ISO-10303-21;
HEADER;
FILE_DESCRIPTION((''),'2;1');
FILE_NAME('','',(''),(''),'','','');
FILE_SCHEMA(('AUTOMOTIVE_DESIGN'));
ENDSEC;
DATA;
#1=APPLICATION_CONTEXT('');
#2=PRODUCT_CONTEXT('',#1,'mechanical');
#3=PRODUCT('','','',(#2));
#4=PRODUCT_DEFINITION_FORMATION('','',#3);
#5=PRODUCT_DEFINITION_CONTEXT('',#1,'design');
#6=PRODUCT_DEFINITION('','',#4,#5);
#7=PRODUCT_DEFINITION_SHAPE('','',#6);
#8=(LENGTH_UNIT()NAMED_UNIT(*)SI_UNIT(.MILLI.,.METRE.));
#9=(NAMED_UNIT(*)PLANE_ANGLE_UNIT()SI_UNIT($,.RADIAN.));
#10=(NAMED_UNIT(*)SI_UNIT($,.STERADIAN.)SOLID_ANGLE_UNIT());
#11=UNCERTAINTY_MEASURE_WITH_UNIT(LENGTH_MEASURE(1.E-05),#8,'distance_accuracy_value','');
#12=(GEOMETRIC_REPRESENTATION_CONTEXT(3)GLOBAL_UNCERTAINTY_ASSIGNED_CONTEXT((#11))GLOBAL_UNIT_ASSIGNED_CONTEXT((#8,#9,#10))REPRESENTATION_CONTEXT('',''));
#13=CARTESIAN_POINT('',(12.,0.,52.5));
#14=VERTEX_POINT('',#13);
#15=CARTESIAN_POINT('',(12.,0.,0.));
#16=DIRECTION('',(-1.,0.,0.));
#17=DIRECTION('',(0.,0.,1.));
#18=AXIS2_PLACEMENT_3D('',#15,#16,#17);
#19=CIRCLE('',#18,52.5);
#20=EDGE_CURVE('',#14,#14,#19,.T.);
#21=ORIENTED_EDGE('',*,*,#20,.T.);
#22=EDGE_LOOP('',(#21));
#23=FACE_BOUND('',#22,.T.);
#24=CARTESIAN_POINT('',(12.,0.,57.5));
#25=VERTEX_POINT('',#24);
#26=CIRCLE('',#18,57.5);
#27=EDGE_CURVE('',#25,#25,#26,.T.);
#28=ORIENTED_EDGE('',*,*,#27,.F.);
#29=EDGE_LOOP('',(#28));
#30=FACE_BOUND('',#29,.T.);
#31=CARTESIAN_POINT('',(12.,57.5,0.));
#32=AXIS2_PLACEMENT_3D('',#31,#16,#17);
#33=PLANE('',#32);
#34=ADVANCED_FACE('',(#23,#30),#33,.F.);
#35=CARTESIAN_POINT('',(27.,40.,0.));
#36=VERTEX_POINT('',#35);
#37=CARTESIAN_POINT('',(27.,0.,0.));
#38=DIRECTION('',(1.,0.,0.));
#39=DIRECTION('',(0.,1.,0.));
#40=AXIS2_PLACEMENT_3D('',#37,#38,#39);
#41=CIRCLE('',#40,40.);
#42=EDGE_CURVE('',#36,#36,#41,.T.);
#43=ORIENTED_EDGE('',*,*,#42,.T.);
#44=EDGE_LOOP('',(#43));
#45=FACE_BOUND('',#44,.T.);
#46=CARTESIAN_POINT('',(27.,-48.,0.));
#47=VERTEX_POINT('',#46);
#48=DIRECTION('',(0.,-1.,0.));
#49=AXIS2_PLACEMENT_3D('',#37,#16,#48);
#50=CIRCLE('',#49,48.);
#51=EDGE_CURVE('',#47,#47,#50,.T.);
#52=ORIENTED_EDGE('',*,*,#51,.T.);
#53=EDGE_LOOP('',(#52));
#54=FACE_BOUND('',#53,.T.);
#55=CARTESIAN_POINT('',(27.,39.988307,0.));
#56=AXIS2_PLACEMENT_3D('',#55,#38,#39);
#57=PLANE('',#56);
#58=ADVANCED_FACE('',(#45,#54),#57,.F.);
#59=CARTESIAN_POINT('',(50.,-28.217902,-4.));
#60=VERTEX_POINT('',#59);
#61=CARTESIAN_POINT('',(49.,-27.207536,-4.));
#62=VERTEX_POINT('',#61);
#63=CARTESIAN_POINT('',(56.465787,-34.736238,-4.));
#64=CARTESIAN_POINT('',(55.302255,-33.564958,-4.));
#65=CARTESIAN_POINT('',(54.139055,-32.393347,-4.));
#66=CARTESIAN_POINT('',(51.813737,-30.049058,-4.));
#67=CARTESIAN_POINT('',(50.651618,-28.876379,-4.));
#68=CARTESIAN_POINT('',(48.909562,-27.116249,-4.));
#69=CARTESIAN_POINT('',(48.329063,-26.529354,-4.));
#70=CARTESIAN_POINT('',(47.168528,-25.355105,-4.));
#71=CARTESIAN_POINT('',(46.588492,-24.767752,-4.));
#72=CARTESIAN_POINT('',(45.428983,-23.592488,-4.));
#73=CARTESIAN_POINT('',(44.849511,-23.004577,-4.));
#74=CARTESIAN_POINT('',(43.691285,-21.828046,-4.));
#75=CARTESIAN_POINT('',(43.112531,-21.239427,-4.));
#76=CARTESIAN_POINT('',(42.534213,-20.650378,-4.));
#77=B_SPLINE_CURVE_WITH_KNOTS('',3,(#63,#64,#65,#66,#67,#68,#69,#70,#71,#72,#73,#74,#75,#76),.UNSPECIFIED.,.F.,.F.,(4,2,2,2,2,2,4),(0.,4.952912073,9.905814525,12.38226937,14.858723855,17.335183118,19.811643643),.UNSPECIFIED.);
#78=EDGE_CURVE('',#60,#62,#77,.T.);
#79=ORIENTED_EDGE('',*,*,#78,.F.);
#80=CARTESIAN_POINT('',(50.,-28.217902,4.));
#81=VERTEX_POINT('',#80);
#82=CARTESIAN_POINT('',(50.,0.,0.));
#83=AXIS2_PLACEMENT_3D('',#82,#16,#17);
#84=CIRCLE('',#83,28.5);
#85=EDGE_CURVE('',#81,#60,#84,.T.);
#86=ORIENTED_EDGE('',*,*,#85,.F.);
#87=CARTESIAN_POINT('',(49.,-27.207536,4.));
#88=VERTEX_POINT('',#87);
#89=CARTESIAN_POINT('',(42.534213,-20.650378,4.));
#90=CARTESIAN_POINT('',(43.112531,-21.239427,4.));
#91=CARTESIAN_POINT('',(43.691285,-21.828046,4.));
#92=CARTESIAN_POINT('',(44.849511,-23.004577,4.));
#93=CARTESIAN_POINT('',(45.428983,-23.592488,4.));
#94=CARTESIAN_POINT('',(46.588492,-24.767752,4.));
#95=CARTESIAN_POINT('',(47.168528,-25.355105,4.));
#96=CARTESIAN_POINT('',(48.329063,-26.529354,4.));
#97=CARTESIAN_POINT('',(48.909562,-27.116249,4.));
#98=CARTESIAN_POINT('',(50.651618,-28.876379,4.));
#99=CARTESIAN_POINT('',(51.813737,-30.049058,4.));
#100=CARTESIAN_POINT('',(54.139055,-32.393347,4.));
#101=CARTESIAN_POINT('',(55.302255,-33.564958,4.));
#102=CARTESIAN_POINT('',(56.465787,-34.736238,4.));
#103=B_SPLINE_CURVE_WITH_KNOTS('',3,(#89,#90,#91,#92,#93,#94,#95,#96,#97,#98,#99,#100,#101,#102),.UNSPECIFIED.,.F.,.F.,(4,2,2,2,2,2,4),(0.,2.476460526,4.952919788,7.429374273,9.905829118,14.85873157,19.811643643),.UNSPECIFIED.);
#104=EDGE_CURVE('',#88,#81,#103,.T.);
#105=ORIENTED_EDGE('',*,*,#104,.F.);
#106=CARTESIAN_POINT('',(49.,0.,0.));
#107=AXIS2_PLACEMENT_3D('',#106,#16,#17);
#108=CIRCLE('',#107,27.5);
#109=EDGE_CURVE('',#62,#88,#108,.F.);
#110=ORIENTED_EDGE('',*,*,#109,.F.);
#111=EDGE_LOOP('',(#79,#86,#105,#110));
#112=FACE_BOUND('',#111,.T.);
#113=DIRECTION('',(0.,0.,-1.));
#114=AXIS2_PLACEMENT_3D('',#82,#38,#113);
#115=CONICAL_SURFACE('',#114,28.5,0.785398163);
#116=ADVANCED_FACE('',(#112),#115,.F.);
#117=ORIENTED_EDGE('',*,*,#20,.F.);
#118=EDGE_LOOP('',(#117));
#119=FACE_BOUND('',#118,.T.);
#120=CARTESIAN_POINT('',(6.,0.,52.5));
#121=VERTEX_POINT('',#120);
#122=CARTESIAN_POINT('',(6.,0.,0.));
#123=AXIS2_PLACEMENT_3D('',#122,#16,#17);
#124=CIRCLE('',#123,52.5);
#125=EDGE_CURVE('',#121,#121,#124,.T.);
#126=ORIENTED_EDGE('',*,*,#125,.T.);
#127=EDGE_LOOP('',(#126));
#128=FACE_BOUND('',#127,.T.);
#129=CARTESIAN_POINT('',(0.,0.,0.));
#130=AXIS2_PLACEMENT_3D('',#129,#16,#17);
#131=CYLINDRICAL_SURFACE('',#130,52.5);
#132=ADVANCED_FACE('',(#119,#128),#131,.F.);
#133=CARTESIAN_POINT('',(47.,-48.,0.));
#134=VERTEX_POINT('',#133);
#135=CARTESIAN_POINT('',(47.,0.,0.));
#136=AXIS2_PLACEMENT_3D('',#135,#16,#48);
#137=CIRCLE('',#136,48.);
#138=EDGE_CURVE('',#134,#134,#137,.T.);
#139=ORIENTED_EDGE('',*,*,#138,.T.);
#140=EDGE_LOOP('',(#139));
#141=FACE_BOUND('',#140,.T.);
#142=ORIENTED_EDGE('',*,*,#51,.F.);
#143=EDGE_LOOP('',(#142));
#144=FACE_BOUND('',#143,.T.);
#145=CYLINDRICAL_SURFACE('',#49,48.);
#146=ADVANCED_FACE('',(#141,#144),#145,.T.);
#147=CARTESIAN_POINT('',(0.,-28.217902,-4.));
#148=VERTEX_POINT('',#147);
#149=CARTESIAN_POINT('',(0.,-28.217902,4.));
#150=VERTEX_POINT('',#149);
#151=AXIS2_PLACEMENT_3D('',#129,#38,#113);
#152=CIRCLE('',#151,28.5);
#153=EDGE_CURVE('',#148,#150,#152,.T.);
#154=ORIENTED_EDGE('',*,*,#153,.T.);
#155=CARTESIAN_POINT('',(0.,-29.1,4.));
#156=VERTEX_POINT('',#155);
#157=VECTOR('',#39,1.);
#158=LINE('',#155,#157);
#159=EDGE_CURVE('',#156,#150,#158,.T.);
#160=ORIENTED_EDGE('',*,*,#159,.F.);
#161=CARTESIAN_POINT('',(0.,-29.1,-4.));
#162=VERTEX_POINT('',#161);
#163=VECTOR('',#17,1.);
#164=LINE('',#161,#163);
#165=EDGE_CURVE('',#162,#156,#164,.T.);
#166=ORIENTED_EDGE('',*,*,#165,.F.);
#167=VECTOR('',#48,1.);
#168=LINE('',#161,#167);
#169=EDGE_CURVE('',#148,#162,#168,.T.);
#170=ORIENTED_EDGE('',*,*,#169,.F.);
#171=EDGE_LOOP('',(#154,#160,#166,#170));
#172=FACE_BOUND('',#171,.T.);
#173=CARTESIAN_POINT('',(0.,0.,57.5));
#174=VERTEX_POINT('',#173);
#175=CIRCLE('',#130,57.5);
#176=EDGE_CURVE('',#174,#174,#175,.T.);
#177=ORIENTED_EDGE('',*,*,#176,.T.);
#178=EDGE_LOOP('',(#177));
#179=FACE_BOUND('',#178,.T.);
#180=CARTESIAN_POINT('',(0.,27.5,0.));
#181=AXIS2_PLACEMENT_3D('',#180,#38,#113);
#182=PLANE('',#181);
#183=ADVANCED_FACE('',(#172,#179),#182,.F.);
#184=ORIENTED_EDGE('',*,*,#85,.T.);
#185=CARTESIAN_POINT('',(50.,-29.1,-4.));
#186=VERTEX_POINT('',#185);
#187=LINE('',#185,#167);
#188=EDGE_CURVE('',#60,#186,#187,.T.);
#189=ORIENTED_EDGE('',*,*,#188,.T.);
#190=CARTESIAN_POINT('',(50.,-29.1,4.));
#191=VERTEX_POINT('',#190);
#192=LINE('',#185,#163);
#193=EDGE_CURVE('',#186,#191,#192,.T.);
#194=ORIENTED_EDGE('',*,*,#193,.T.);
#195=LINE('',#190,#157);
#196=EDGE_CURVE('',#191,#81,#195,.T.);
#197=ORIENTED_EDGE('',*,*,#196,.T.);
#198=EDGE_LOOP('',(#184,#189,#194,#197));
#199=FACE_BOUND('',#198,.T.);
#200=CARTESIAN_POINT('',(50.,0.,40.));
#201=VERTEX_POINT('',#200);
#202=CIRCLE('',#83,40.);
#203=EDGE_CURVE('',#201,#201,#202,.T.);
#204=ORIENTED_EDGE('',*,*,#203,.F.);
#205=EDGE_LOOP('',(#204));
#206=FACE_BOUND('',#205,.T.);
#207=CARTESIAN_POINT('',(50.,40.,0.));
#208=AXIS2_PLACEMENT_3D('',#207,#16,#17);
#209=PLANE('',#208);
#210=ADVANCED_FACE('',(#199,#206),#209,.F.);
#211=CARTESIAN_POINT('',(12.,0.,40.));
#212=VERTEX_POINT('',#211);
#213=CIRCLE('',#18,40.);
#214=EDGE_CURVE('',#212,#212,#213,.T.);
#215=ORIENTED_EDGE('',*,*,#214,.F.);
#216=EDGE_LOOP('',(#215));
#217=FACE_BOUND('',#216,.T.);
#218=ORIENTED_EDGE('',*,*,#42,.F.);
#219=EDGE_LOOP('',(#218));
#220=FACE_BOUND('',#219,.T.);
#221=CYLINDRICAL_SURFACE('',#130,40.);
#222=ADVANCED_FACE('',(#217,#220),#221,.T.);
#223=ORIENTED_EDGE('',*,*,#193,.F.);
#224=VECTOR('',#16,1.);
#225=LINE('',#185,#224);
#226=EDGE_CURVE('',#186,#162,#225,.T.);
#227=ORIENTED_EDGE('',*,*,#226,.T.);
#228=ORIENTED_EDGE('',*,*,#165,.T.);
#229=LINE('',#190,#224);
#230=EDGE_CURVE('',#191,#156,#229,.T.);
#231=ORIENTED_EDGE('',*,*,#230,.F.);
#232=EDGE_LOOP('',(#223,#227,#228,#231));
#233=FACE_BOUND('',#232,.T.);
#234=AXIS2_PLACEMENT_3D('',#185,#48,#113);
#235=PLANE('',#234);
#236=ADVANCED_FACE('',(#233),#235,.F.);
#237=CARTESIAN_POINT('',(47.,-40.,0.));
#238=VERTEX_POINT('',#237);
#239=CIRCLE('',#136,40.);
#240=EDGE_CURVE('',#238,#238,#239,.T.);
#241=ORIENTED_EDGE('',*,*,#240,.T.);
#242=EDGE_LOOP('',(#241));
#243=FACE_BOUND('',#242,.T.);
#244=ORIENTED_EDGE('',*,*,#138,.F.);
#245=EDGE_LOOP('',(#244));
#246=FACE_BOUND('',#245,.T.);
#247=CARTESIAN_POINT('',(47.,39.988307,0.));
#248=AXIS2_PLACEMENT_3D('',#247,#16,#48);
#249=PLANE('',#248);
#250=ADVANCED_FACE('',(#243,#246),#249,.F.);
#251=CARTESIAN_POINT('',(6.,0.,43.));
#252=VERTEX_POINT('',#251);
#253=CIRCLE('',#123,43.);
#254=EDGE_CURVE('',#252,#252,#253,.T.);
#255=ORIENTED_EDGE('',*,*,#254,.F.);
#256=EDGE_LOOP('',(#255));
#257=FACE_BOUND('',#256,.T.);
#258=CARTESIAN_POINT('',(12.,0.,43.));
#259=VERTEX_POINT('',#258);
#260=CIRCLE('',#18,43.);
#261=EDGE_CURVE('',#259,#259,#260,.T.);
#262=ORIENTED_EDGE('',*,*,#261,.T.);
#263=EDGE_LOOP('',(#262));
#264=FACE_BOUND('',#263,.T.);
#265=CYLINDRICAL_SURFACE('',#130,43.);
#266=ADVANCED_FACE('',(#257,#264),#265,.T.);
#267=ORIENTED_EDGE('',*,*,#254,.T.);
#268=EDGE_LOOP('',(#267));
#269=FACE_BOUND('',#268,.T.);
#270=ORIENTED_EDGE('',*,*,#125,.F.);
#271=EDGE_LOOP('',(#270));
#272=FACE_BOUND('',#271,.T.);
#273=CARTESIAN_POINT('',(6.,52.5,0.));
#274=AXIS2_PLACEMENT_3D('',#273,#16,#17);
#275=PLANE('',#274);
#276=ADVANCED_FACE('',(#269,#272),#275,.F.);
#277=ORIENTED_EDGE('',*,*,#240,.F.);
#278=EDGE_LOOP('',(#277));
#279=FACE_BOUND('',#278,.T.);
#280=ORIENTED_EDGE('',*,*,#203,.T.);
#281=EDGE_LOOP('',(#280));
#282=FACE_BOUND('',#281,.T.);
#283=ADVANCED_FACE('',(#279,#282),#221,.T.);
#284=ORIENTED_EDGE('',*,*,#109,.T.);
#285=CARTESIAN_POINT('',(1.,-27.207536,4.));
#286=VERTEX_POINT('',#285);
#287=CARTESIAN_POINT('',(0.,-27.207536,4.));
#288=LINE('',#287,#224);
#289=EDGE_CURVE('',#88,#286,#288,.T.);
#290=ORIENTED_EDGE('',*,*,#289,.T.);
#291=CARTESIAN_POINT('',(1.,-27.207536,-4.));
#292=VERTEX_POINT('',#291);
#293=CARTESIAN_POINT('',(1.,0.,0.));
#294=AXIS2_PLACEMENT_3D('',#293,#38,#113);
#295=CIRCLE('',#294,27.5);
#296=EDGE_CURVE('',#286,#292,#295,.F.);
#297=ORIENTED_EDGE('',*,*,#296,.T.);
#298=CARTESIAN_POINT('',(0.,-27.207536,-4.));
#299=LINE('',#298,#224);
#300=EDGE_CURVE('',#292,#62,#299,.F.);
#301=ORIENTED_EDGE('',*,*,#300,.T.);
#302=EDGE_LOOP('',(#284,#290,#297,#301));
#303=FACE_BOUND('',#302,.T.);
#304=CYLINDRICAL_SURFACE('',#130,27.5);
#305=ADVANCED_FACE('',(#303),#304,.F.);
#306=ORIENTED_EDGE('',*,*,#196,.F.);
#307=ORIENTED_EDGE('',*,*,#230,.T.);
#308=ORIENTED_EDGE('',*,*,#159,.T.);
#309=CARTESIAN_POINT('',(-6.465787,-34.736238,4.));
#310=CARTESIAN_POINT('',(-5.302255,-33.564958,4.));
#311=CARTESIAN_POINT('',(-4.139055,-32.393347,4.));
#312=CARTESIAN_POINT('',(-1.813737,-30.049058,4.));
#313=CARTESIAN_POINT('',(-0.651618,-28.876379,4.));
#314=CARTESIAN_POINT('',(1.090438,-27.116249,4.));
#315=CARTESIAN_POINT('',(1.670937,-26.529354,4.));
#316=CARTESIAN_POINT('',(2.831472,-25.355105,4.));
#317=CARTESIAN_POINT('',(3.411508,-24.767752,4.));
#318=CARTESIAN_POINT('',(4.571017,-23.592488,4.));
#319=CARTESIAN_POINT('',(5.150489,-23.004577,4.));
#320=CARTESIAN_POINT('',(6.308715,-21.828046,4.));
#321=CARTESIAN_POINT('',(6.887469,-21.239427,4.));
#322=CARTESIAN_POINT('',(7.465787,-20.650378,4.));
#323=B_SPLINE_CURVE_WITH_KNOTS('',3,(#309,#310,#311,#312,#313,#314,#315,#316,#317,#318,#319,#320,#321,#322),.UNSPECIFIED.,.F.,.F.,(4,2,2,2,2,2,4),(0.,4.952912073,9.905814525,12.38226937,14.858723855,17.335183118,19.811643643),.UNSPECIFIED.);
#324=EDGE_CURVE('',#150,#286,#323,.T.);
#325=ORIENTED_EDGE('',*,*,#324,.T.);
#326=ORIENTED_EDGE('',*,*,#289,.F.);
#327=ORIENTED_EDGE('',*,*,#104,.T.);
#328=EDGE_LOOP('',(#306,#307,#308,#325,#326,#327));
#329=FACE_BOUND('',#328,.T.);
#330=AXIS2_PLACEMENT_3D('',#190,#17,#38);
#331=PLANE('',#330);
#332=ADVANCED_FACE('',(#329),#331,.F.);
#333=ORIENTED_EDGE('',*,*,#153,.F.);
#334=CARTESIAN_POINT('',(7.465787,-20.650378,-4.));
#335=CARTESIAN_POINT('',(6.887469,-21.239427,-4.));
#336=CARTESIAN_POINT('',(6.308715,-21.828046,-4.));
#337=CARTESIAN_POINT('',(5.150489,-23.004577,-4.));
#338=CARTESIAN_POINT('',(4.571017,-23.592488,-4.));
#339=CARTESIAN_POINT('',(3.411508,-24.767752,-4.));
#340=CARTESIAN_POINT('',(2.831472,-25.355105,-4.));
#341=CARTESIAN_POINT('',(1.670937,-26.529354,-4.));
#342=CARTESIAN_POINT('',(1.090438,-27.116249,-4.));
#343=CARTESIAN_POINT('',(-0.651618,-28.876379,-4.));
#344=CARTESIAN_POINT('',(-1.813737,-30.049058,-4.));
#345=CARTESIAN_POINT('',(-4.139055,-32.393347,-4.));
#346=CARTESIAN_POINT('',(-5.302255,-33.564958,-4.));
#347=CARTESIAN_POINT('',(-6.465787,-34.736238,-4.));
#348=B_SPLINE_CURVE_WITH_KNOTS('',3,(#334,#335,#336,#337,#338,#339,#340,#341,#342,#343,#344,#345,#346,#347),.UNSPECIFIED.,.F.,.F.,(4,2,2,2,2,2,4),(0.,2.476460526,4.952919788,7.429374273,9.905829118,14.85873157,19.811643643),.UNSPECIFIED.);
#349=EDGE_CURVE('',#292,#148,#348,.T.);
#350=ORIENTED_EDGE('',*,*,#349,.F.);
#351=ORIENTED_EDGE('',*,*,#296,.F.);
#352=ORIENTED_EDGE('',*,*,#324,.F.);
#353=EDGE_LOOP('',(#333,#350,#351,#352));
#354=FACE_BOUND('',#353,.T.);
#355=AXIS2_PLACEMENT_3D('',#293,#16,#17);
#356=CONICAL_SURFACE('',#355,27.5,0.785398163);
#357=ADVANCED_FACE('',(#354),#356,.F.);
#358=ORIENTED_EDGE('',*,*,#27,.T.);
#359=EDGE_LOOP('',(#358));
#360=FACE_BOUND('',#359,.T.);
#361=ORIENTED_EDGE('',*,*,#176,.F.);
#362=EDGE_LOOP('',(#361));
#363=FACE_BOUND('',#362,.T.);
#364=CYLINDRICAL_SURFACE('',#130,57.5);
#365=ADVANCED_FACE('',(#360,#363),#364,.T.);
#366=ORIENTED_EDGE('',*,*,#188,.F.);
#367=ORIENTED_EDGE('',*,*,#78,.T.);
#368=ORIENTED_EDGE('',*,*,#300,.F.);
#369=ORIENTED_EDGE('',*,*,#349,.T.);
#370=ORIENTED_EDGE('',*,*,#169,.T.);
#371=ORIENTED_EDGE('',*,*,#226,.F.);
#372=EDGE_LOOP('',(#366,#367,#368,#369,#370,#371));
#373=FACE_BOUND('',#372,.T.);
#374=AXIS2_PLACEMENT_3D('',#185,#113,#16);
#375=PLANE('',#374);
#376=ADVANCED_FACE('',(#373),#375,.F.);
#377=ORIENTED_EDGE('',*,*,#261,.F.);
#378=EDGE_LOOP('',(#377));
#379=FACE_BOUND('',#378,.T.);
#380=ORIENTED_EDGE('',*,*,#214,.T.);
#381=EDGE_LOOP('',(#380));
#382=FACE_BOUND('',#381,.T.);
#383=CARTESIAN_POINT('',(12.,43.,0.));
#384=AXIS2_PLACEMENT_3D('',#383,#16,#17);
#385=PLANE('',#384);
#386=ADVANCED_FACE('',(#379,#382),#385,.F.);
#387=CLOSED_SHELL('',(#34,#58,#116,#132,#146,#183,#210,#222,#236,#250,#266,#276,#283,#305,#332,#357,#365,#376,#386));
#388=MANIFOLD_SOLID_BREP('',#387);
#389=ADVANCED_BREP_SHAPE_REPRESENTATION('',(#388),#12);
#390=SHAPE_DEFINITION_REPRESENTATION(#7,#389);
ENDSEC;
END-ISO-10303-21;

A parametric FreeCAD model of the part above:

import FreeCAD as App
import Part
import Sketcher

V = App.Vector
Q = App.Units.Quantity


def edges_at(feature, points):
    """Names of the edges that pass closest to the given points."""
    edges = feature.Shape.Edges
    near = lambda p: min(range(len(edges)), key=lambda i: edges[i].distToShape(Part.Vertex(*p))[0])
    return sorted({f"Edge{near(p) + 1}" for p in points})


def add_polygon(sketch, points):
    """Adds a closed chain of lines whose ends are joined by coincident constraints."""
    first, n = sketch.GeometryCount, len(points)
    for a, b in zip(points, points[1:] + points[:1]):
        sketch.addGeometry(Part.LineSegment(App.Vector(*a, 0), App.Vector(*b, 0)), False)
    for i in range(n):
        sketch.addConstraint(Sketcher.Constraint("Coincident", first + i, 2, first + (i + 1) % n, 1))

doc = App.newDocument("Part")
params = doc.addObject("Spreadsheet::Sheet", "Params")
for row, (alias, value) in enumerate([
    ("sketch1_width", "50 mm"),
    ("sketch1_width2", "38 mm"),
    ("sketch1_width3", "6 mm"),
    ("sketch1_height", "30 mm"),
    ("sketch1_height2", "3 mm"),
    ("revolution_angle", "360 deg"),
    ("chamfer_size", "1 mm"),
    ("sketch2_width", "20 mm"),
    ("revolution2_angle", "360 deg"),
    ("sketch3_height", "8 mm"),
], start=1):
    params.set(f"A{row}", alias)
    params.set(f"B{row}", "=" + value)
    params.setAlias(f"B{row}", alias)

body = doc.addObject("PartDesign::Body", "Body")

# Sketch on XY plane
sketch1 = body.newObject("Sketcher::SketchObject", "Sketch")
sketch1.AttachmentSupport = (doc.getObject("XY_Plane"), [""])
sketch1.MapMode = "FlatFace"
add_polygon(sketch1, [(0, 57.5), (0, 27.5), (50, 27.5), (50, 40), (12, 40), (12, 43), (6, 43), (6, 52.5), (12, 52.5), (12, 57.5)])  # lines 0-9
sketch1.addConstraint(Sketcher.Constraint("Vertical", 0))
sketch1.addConstraint(Sketcher.Constraint("Horizontal", 1))
sketch1.addConstraint(Sketcher.Constraint("Vertical", 2))
sketch1.addConstraint(Sketcher.Constraint("Horizontal", 3))
sketch1.addConstraint(Sketcher.Constraint("Vertical", 4))
sketch1.addConstraint(Sketcher.Constraint("Horizontal", 5))
sketch1.addConstraint(Sketcher.Constraint("Vertical", 6))
sketch1.addConstraint(Sketcher.Constraint("Horizontal", 7))
sketch1.addConstraint(Sketcher.Constraint("Vertical", 8))
sketch1.addConstraint(Sketcher.Constraint("Horizontal", 9))
sketch1.addConstraint(Sketcher.Constraint("PointOnObject", 0, 2, -2))
sketch1.addConstraint(Sketcher.Constraint("Vertical", 4, 2, 7, 2))
sketch1.addConstraint(Sketcher.Constraint("DistanceX", 1, 1, 1, 2, Q("50 mm")))
sketch1.addConstraint(Sketcher.Constraint("DistanceX", 3, 2, 3, 1, Q("38 mm")))
sketch1.addConstraint(Sketcher.Constraint("DistanceX", 5, 2, 5, 1, Q("6 mm")))
sketch1.addConstraint(Sketcher.Constraint("DistanceY", 0, 2, 0, 1, Q("30 mm")))
sketch1.addConstraint(Sketcher.Constraint("DistanceY", 4, 1, 4, 2, Q("3 mm")))
sketch1.addConstraint(Sketcher.Constraint("DistanceY", 8, 1, 8, 2, Q("5 mm")))
sketch1.addConstraint(Sketcher.Constraint("DistanceY", 2, 1, 2, 2, Q("12.5 mm")))
sketch1.addConstraint(Sketcher.Constraint("DistanceY", -1, 1, 2, 2, Q("40 mm")))
sketch1.setExpression("Constraints[22]", "Params.sketch1_width")
sketch1.setExpression("Constraints[23]", "Params.sketch1_width2")
sketch1.setExpression("Constraints[24]", "Params.sketch1_width3")
sketch1.setExpression("Constraints[25]", "Params.sketch1_height")
sketch1.setExpression("Constraints[26]", "Params.sketch1_height2")
revolution = body.newObject("PartDesign::Revolution", "Revolution")
revolution.Profile = sketch1
revolution.ReferenceAxis = (sketch1, ["H_Axis"])
revolution.setExpression("Angle", "Params.revolution_angle")
doc.recompute()

chamfer = body.newObject("PartDesign::Chamfer", "Chamfer")
chamfer.Base = (revolution, edges_at(revolution, [(0, 0, -27.5), (50, 0, -27.5)]))
chamfer.setExpression("Size", "Params.chamfer_size")

# Sketch on XY plane
sketch2 = body.newObject("Sketcher::SketchObject", "Sketch001")
sketch2.AttachmentSupport = (doc.getObject("XY_Plane"), [""])
sketch2.MapMode = "FlatFace"
add_polygon(sketch2, [(27, 48), (27, 40), (47, 40), (47, 48)])  # lines 0-3
sketch2.addConstraint(Sketcher.Constraint("Vertical", 0))
sketch2.addConstraint(Sketcher.Constraint("Horizontal", 1))
sketch2.addConstraint(Sketcher.Constraint("Vertical", 2))
sketch2.addConstraint(Sketcher.Constraint("Horizontal", 3))
sketch2.addConstraint(Sketcher.Constraint("DistanceX", 1, 1, 1, 2, Q("20 mm")))
sketch2.addConstraint(Sketcher.Constraint("DistanceX", -1, 1, 0, 2, Q("27 mm")))
sketch2.addConstraint(Sketcher.Constraint("DistanceY", -1, 1, 2, 2, Q("48 mm")))
sketch2.addConstraint(Sketcher.Constraint("DistanceY", 0, 2, 0, 1, Q("8.011693 mm")))
sketch2.setExpression("Constraints[8]", "Params.sketch2_width")
revolution2 = body.newObject("PartDesign::Revolution", "Revolution001")
revolution2.Profile = sketch2
revolution2.ReferenceAxis = (sketch2, ["H_Axis"])
revolution2.setExpression("Angle", "Params.revolution2_angle")

# Sketch on YZ plane
sketch3 = body.newObject("Sketcher::SketchObject", "Sketch002")
sketch3.AttachmentSupport = (doc.getObject("YZ_Plane"), [""])
sketch3.MapMode = "FlatFace"
add_polygon(sketch3, [(-22, -4), (-29, -4), (-29, 4), (-22, 4)])  # lines 0-3
sketch3.addConstraint(Sketcher.Constraint("Horizontal", 0))
sketch3.addConstraint(Sketcher.Constraint("Vertical", 1))
sketch3.addConstraint(Sketcher.Constraint("Horizontal", 2))
sketch3.addConstraint(Sketcher.Constraint("Vertical", 3))
sketch3.addConstraint(Sketcher.Constraint("DistanceY", 1, 1, 1, 2, Q("8 mm")))
sketch3.addConstraint(Sketcher.Constraint("DistanceY", 0, 2, -1, 1, Q("4 mm")))
sketch3.addConstraint(Sketcher.Constraint("DistanceX", 0, 2, -1, 1, Q("29.1 mm")))
sketch3.addConstraint(Sketcher.Constraint("DistanceX", 0, 2, 0, 1, Q("6.987786 mm")))
sketch3.setExpression("Constraints[8]", "Params.sketch3_height")
pocket1 = body.newObject("PartDesign::Pocket", "Pocket")
pocket1.Profile = sketch3
pocket1.Type = "ThroughAll"
pocket1.Reversed = True

doc.recompute()
